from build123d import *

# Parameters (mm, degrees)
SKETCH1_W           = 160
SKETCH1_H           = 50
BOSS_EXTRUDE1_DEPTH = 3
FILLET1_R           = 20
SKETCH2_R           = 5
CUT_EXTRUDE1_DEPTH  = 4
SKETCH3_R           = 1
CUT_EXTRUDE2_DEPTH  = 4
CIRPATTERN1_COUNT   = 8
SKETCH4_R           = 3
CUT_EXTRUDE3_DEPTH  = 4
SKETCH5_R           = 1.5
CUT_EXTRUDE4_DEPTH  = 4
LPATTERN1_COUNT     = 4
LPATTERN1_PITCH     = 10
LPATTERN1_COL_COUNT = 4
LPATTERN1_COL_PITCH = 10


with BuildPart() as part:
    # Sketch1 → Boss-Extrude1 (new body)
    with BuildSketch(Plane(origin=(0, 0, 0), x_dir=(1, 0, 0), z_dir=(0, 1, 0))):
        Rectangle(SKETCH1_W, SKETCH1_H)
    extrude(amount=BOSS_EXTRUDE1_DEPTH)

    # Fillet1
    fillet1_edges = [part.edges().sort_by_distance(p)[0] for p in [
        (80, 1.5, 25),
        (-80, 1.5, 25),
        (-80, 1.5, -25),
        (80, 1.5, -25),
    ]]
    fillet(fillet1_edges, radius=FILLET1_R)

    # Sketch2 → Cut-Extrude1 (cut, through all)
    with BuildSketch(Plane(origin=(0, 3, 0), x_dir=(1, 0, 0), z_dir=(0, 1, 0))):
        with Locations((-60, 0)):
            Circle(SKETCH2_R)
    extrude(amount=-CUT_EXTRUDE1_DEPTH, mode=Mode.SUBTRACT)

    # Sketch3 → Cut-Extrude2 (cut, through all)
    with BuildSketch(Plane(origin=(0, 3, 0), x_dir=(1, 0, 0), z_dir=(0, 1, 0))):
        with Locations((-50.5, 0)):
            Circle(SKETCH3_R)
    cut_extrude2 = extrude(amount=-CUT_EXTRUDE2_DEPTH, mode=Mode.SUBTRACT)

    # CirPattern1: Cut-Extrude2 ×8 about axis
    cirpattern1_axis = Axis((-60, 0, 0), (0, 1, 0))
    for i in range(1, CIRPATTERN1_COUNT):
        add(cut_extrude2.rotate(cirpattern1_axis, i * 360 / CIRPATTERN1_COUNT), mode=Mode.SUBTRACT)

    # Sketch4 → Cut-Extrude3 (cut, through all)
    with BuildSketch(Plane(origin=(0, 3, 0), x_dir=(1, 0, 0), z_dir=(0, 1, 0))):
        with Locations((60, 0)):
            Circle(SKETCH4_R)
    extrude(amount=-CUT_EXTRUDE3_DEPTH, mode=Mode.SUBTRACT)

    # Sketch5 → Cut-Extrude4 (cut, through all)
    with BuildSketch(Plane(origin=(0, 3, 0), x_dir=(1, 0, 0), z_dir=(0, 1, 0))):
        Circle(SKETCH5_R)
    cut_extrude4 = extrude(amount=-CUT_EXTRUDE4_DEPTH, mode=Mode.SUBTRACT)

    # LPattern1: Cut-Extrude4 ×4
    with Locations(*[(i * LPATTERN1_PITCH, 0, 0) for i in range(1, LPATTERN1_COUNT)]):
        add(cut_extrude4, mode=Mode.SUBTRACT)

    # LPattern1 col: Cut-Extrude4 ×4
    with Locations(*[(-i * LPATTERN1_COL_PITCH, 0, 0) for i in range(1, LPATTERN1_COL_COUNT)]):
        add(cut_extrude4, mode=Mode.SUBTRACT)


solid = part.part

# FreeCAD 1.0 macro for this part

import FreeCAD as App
import Part
import Sketcher
from FreeCAD import Vector


def edges_at(feature, points):
    """Names of the edges that pass closest to the given points."""
    edges = feature.Shape.Edges
    near = lambda p: min(range(len(edges)), key=lambda i: edges[i].distToShape(Part.Vertex(*p))[0])
    return sorted({f"Edge{near(p) + 1}" for p in points})

doc = App.newDocument("Part")
body = doc.addObject("PartDesign::Body", "Body")

# Sketch on XZ plane
sketch1 = body.newObject("Sketcher::SketchObject", "Sketch")
sketch1.AttachmentSupport = (doc.getObject("XZ_Plane"), [""])
sketch1.MapMode = "FlatFace"
sketch1.addGeometry(Part.LineSegment(Vector(-80, -25, 0), Vector(-80, 25, 0)), False)
sketch1.addGeometry(Part.LineSegment(Vector(-80, 25, 0), Vector(80, 25, 0)), False)
sketch1.addGeometry(Part.LineSegment(Vector(80, 25, 0), Vector(80, -25, 0)), False)
sketch1.addGeometry(Part.LineSegment(Vector(80, -25, 0), Vector(-80, -25, 0)), False)
sketch1.addConstraint(Sketcher.Constraint("Coincident", 0, 2, 1, 1))
sketch1.addConstraint(Sketcher.Constraint("Coincident", 1, 2, 2, 1))
sketch1.addConstraint(Sketcher.Constraint("Coincident", 2, 2, 3, 1))
sketch1.addConstraint(Sketcher.Constraint("Coincident", 3, 2, 0, 1))
sketch1.addConstraint(Sketcher.Constraint("Vertical", 0))
sketch1.addConstraint(Sketcher.Constraint("Horizontal", 1))
sketch1.addConstraint(Sketcher.Constraint("Vertical", 2))
sketch1.addConstraint(Sketcher.Constraint("Horizontal", 3))
sketch1.addConstraint(Sketcher.Constraint("Symmetric", 0, 2, 2, 2, -1, 1))
sketch1.addConstraint(Sketcher.Constraint("DistanceX", 1, 1, 1, 2, 160.0))
sketch1.addConstraint(Sketcher.Constraint("DistanceY", 0, 1, 0, 2, 50.0))
pad1 = body.newObject("PartDesign::Pad", "Pad")
pad1.Profile = sketch1
pad1.Length = 3
pad1.Reversed = True
doc.recompute()

fillet = body.newObject("PartDesign::Fillet", "Fillet")
fillet.Base = (pad1, edges_at(pad1, [
    (80, 1.5, 25),
    (-80, 1.5, 25),
    (-80, 1.5, -25),
    (80, 1.5, -25),
]))
fillet.Radius = 20

# Sketch on XZ plane
sketch2 = body.newObject("Sketcher::SketchObject", "Sketch001")
sketch2.AttachmentSupport = (doc.getObject("XZ_Plane"), [""])
sketch2.MapMode = "FlatFace"
sketch2.AttachmentOffset = App.Placement(Vector(0, 0, -3), App.Rotation())
sketch2.addGeometry(Part.Circle(Vector(-60, 0, 0), Vector(0, 0, 1), 5), False)
sketch2.addConstraint(Sketcher.Constraint("PointOnObject", 0, 3, -1))
sketch2.addConstraint(Sketcher.Constraint("Diameter", 0, 10.0))
sketch2.addConstraint(Sketcher.Constraint("DistanceX", 0, 3, -1, 1, 60.0))
pocket1 = body.newObject("PartDesign::Pocket", "Pocket")
pocket1.Profile = sketch2
pocket1.Type = "ThroughAll"
pocket1.Reversed = True

# Sketch on XZ plane
sketch3 = body.newObject("Sketcher::SketchObject", "Sketch002")
sketch3.AttachmentSupport = (doc.getObject("XZ_Plane"), [""])
sketch3.MapMode = "FlatFace"
sketch3.AttachmentOffset = App.Placement(Vector(0, 0, -3), App.Rotation())
sketch3.addGeometry(Part.Circle(Vector(-50.5, 0, 0), Vector(0, 0, 1), 1), False)
sketch3.addConstraint(Sketcher.Constraint("PointOnObject", 0, 3, -1))
sketch3.addConstraint(Sketcher.Constraint("Diameter", 0, 2.0))
sketch3.addConstraint(Sketcher.Constraint("DistanceX", 0, 3, -1, 1, 50.5))
pocket2 = body.newObject("PartDesign::Pocket", "Pocket001")
pocket2.Profile = sketch3
pocket2.Type = "ThroughAll"
pocket2.Reversed = True
doc.recompute()

datumline = body.newObject("PartDesign::Line", "DatumLine")
datumline.Placement = App.Placement(Vector(-60, 0, 0), App.Rotation(Vector(0, 0, 1), Vector(0, 1, 0)))
polarpattern = body.newObject("PartDesign::PolarPattern", "PolarPattern")
polarpattern.Originals = [pocket2]
polarpattern.Axis = (datumline, [""])
polarpattern.Angle = 360
polarpattern.Occurrences = 8
body.Tip = polarpattern

# Sketch on XZ plane
sketch4 = body.newObject("Sketcher::SketchObject", "Sketch003")
sketch4.AttachmentSupport = (doc.getObject("XZ_Plane"), [""])
sketch4.MapMode = "FlatFace"
sketch4.AttachmentOffset = App.Placement(Vector(0, 0, -3), App.Rotation())
sketch4.addGeometry(Part.Circle(Vector(60, 0, 0), Vector(0, 0, 1), 3), False)
sketch4.addConstraint(Sketcher.Constraint("PointOnObject", 0, 3, -1))
sketch4.addConstraint(Sketcher.Constraint("Diameter", 0, 6.0))
sketch4.addConstraint(Sketcher.Constraint("DistanceX", -1, 1, 0, 3, 60.0))
pocket3 = body.newObject("PartDesign::Pocket", "Pocket002")
pocket3.Profile = sketch4
pocket3.Type = "ThroughAll"
pocket3.Reversed = True

# Sketch on XZ plane
sketch5 = body.newObject("Sketcher::SketchObject", "Sketch004")
sketch5.AttachmentSupport = (doc.getObject("XZ_Plane"), [""])
sketch5.MapMode = "FlatFace"
sketch5.AttachmentOffset = App.Placement(Vector(0, 0, -3), App.Rotation())
sketch5.addGeometry(Part.Circle(Vector(0, 0, 0), Vector(0, 0, 1), 1.5), False)
sketch5.addConstraint(Sketcher.Constraint("Coincident", 0, 3, -1, 1))
sketch5.addConstraint(Sketcher.Constraint("Diameter", 0, 3.0))
pocket4 = body.newObject("PartDesign::Pocket", "Pocket003")
pocket4.Profile = sketch5
pocket4.Type = "ThroughAll"
pocket4.Reversed = True
doc.recompute()

linearpattern = body.newObject("PartDesign::LinearPattern", "LinearPattern")
linearpattern.Originals = [pocket4]
linearpattern.Direction = (doc.getObject("X_Axis"), [""])
linearpattern.Mode = "offset"
linearpattern.Offset = 10
linearpattern.Occurrences = 4
body.Tip = linearpattern
doc.recompute()

linearpattern2 = body.newObject("PartDesign::LinearPattern", "LinearPattern001")
linearpattern2.Originals = [pocket4]
linearpattern2.Direction = (doc.getObject("X_Axis"), [""])
linearpattern2.Mode = "offset"
linearpattern2.Offset = 10
linearpattern2.Occurrences = 4
linearpattern2.Reversed = True
body.Tip = linearpattern2

doc.recompute()
